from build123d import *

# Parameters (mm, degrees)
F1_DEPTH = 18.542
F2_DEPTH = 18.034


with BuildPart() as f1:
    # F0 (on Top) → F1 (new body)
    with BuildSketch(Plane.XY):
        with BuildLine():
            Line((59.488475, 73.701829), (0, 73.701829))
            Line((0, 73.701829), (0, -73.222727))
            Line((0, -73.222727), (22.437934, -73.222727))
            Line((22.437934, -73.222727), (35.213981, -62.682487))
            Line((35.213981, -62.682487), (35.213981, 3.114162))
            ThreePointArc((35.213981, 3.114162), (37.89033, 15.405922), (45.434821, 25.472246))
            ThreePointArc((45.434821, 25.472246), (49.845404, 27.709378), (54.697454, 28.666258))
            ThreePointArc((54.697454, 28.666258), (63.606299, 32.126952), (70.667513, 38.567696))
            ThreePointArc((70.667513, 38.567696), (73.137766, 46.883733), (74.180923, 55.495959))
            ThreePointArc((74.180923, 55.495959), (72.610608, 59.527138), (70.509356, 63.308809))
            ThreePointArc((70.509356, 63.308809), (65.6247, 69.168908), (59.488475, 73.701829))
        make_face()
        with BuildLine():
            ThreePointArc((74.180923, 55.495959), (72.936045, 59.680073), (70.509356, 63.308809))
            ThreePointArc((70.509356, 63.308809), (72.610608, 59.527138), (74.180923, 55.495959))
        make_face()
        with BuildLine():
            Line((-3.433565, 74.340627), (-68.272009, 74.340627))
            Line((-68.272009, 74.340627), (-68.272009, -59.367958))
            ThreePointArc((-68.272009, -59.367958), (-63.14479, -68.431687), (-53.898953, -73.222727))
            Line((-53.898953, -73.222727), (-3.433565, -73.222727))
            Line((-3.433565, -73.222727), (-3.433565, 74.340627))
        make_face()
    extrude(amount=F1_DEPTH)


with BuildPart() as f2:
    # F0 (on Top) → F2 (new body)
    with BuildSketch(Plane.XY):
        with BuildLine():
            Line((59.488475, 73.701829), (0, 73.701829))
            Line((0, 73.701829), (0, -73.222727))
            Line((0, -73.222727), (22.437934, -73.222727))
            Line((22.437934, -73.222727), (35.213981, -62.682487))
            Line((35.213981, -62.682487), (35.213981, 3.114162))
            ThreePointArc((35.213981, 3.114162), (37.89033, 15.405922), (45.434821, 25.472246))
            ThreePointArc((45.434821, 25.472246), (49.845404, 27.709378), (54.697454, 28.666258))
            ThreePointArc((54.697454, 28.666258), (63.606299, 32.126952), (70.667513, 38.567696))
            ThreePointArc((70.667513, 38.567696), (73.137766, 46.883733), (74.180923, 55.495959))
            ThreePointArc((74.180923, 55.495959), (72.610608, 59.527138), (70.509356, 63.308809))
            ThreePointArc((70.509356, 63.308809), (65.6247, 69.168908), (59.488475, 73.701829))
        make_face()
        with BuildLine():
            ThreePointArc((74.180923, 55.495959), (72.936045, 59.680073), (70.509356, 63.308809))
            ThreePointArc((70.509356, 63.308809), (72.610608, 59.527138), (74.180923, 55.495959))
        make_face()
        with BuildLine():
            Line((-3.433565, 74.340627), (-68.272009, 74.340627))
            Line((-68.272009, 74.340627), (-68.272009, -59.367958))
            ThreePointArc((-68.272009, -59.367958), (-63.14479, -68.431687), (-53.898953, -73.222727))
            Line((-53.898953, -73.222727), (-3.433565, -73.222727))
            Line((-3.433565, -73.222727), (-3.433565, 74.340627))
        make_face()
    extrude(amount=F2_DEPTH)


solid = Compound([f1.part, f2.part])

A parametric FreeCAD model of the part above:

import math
import FreeCAD as App
import Part
import Sketcher
from FreeCAD import Vector
Q = App.Units.Quantity

doc = App.newDocument("Part")
body = doc.addObject("PartDesign::Body", "Body")
body.AllowCompound = True

sketch1 = body.newObject("Sketcher::SketchObject", "Sketch")
sketch1.AttachmentSupport = (doc.getObject("XY_Plane"), [""])
sketch1.MapMode = "FlatFace"
sketch1.addGeometry([
    Part.LineSegment(Vector(59.488475, 73.701829, 0), Vector(0, 73.701829, 0)),
    Part.LineSegment(Vector(0, 73.701829, 0), Vector(0, -73.222727, 0)),
    Part.LineSegment(Vector(0, -73.222727, 0), Vector(22.437934, -73.222727, 0)),
    Part.LineSegment(Vector(22.437934, -73.222727, 0), Vector(35.213981, -62.682487, 0)),
    Part.LineSegment(Vector(35.213981, -62.682487, 0), Vector(35.213981, 3.114162, 0)),
    Part.ArcOfCircle(Part.Circle(Vector(64.778553, 3.114161, 0), Vector(0, 0, 1), 29.564572), math.radians(130.865652), math.radians(179.999999)),
    Part.ArcOfCircle(Part.Circle(Vector(55.732945, 10.635513, 0), Vector(0, 0, 1), 18.060454), math.radians(93.28684), math.radians(124.764379)),
    Part.ArcOfCircle(Part.Circle(Vector(49.878963, 54.267813, 0), Vector(0, 0, 1), 26.051055), math.radians(-79.341004), math.radians(-37.061163)),
    Part.ArcOfCircle(Part.Circle(Vector(22.580076, 57.376829, 0), Vector(0, 0, 1), 51.635115), math.radians(-21.362676), math.radians(-2.087528)),
    Part.ArcOfCircle(Part.Circle(Vector(59.728067, 53.473123, 0), Vector(0, 0, 1), 14.593729), math.radians(7.967419), math.radians(42.373954)),
    Part.ArcOfCircle(Part.Circle(Vector(43.735912, 45.95778, 0), Vector(0, 0, 1), 31.904161), math.radians(32.946007), math.radians(60.412884)),
    Part.LineSegment(Vector(-3.433565, 74.340627, 0), Vector(-68.272009, 74.340627, 0)),
    Part.LineSegment(Vector(-68.272009, 74.340627, 0), Vector(-68.272009, -59.367958, 0)),
    Part.ArcOfCircle(Part.Circle(Vector(-50.463494, -55.276002, 0), Vector(0, 0, 1), 18.272583), math.radians(-167.059467), math.radians(-100.83677)),
    Part.LineSegment(Vector(-53.898953, -73.222727, 0), Vector(-3.433565, -73.222727, 0)),
    Part.LineSegment(Vector(-3.433565, -73.222727, 0), Vector(-3.433565, 74.340627, 0)),
], False)
sketch1.addConstraint([
    Sketcher.Constraint("Coincident", 0, 2, 1, 1),
    Sketcher.Constraint("Coincident", 1, 2, 2, 1),
    Sketcher.Constraint("Coincident", 2, 2, 3, 1),
    Sketcher.Constraint("Coincident", 3, 2, 4, 1),
    Sketcher.Constraint("Coincident", 4, 2, 5, 2),
    Sketcher.Constraint("Coincident", 5, 1, 6, 2),
    Sketcher.Constraint("Coincident", 6, 1, 7, 1),
    Sketcher.Constraint("Coincident", 7, 2, 8, 1),
    Sketcher.Constraint("Coincident", 8, 2, 9, 1),
    Sketcher.Constraint("Coincident", 9, 2, 10, 1),
    Sketcher.Constraint("Coincident", 10, 2, 0, 1),
    Sketcher.Constraint("Coincident", 11, 2, 12, 1),
    Sketcher.Constraint("Coincident", 12, 2, 13, 1),
    Sketcher.Constraint("Coincident", 13, 2, 14, 1),
    Sketcher.Constraint("Coincident", 14, 2, 15, 1),
    Sketcher.Constraint("Coincident", 15, 2, 11, 1),
    Sketcher.Constraint("Horizontal", 0),
    Sketcher.Constraint("Vertical", 1),
    Sketcher.Constraint("Horizontal", 2),
    Sketcher.Constraint("Vertical", 4),
    Sketcher.Constraint("Horizontal", 11),
    Sketcher.Constraint("Vertical", 12),
    Sketcher.Constraint("Horizontal", 14),
    Sketcher.Constraint("Vertical", 15),
    Sketcher.Constraint("PointOnObject", 0, 2, -2),
    Sketcher.Constraint("Radius", 9, 14.593729),
    Sketcher.Constraint("Radius", 10, 31.904161),
    Sketcher.Constraint("Radius", 5, 29.564572),
    Sketcher.Constraint("Radius", 6, 18.060454),
    Sketcher.Constraint("Radius", 7, 26.051055),
    Sketcher.Constraint("Radius", 8, 51.635115),
    Sketcher.Constraint("Radius", 13, 18.272583),
    Sketcher.Constraint("DistanceY", 4, 1, 4, 2, 65.796649),
    Sketcher.Constraint("DistanceY", 6, 3, 7, 3, 43.6323),
    Sketcher.Constraint("DistanceY", 8, 3, 0, 2, 16.325),
    Sketcher.Constraint("DistanceY", 3, 2, 6, 3, 73.318),
    Sketcher.Constraint("DistanceX", 10, 3, 7, 2, 26.931601),
    Sketcher.Constraint("DistanceY", 6, 1, 8, 2, 26.829701),
    Sketcher.Constraint("DistanceX", 14, 2, 2, 2, 25.871499),
    Sketcher.Constraint("DistanceY", 10, 2, 15, 2, 0.638798),
    Sketcher.Constraint("Distance", 3, 16.56273),
    Sketcher.Constraint("DistanceX", 0, 2, 0, 1, 59.488475),
    Sketcher.Constraint("DistanceX", 2, 1, 2, 2, 22.437934),
    Sketcher.Constraint("DistanceX", 11, 2, 11, 1, 64.838444),
    Sketcher.Constraint("DistanceX", 14, 1, 14, 2, 50.465388),
    Sketcher.Constraint("DistanceY", 1, 2, 1, 1, 146.924556),
    Sketcher.Constraint("DistanceY", 12, 2, 12, 1, 133.708585),
    Sketcher.Constraint("DistanceY", 15, 1, 15, 2, 147.563354),
    Sketcher.Constraint("DistanceY", -1, 1, 5, 3, 3.114161),
    Sketcher.Constraint("DistanceY", -1, 1, 8, 3, 57.376829),
    Sketcher.Constraint("DistanceY", -1, 1, 10, 3, 45.95778),
    Sketcher.Constraint("DistanceX", -1, 1, 3, 2, 35.213981),
    Sketcher.Constraint("DistanceX", -1, 1, 5, 1, 45.434821),
    Sketcher.Constraint("DistanceY", -1, 1, 6, 1, 28.666258),
    Sketcher.Constraint("DistanceY", -1, 1, 9, 2, 63.308809),
])
pad1 = body.newObject("PartDesign::Pad", "Pad")
pad1.Profile = sketch1
pad1.Length = Q("0.73 in")
body2 = doc.addObject("PartDesign::Body", "Body001")
body2.AllowCompound = True

sketch2 = body2.newObject("Sketcher::SketchObject", "Sketch001")
sketch2.AttachmentSupport = (doc.getObject("XY_Plane001"), [""])
sketch2.MapMode = "FlatFace"
sketch2.addGeometry([
    Part.LineSegment(Vector(59.488475, 73.701829, 0), Vector(0, 73.701829, 0)),
    Part.LineSegment(Vector(0, 73.701829, 0), Vector(0, -73.222727, 0)),
    Part.LineSegment(Vector(0, -73.222727, 0), Vector(22.437934, -73.222727, 0)),
    Part.LineSegment(Vector(22.437934, -73.222727, 0), Vector(35.213981, -62.682487, 0)),
    Part.LineSegment(Vector(35.213981, -62.682487, 0), Vector(35.213981, 3.114162, 0)),
    Part.ArcOfCircle(Part.Circle(Vector(64.778553, 3.114161, 0), Vector(0, 0, 1), 29.564572), math.radians(130.865652), math.radians(179.999999)),
    Part.ArcOfCircle(Part.Circle(Vector(55.732945, 10.635513, 0), Vector(0, 0, 1), 18.060454), math.radians(93.28684), math.radians(124.764379)),
    Part.ArcOfCircle(Part.Circle(Vector(49.878963, 54.267813, 0), Vector(0, 0, 1), 26.051055), math.radians(-79.341004), math.radians(-37.061163)),
    Part.ArcOfCircle(Part.Circle(Vector(22.580076, 57.376829, 0), Vector(0, 0, 1), 51.635115), math.radians(-21.362676), math.radians(-2.087528)),
    Part.ArcOfCircle(Part.Circle(Vector(59.728067, 53.473123, 0), Vector(0, 0, 1), 14.593729), math.radians(7.967419), math.radians(42.373954)),
    Part.ArcOfCircle(Part.Circle(Vector(43.735912, 45.95778, 0), Vector(0, 0, 1), 31.904161), math.radians(32.946007), math.radians(60.412884)),
    Part.LineSegment(Vector(-3.433565, 74.340627, 0), Vector(-68.272009, 74.340627, 0)),
    Part.LineSegment(Vector(-68.272009, 74.340627, 0), Vector(-68.272009, -59.367958, 0)),
    Part.ArcOfCircle(Part.Circle(Vector(-50.463494, -55.276002, 0), Vector(0, 0, 1), 18.272583), math.radians(-167.059467), math.radians(-100.83677)),
    Part.LineSegment(Vector(-53.898953, -73.222727, 0), Vector(-3.433565, -73.222727, 0)),
    Part.LineSegment(Vector(-3.433565, -73.222727, 0), Vector(-3.433565, 74.340627, 0)),
], False)
sketch2.addConstraint([
    Sketcher.Constraint("Coincident", 0, 2, 1, 1),
    Sketcher.Constraint("Coincident", 1, 2, 2, 1),
    Sketcher.Constraint("Coincident", 2, 2, 3, 1),
    Sketcher.Constraint("Coincident", 3, 2, 4, 1),
    Sketcher.Constraint("Coincident", 4, 2, 5, 2),
    Sketcher.Constraint("Coincident", 5, 1, 6, 2),
    Sketcher.Constraint("Coincident", 6, 1, 7, 1),
    Sketcher.Constraint("Coincident", 7, 2, 8, 1),
    Sketcher.Constraint("Coincident", 8, 2, 9, 1),
    Sketcher.Constraint("Coincident", 9, 2, 10, 1),
    Sketcher.Constraint("Coincident", 10, 2, 0, 1),
    Sketcher.Constraint("Coincident", 11, 2, 12, 1),
    Sketcher.Constraint("Coincident", 12, 2, 13, 1),
    Sketcher.Constraint("Coincident", 13, 2, 14, 1),
    Sketcher.Constraint("Coincident", 14, 2, 15, 1),
    Sketcher.Constraint("Coincident", 15, 2, 11, 1),
    Sketcher.Constraint("Horizontal", 0),
    Sketcher.Constraint("Vertical", 1),
    Sketcher.Constraint("Horizontal", 2),
    Sketcher.Constraint("Vertical", 4),
    Sketcher.Constraint("Horizontal", 11),
    Sketcher.Constraint("Vertical", 12),
    Sketcher.Constraint("Horizontal", 14),
    Sketcher.Constraint("Vertical", 15),
    Sketcher.Constraint("PointOnObject", 0, 2, -2),
    Sketcher.Constraint("Radius", 9, 14.593729),
    Sketcher.Constraint("Radius", 10, 31.904161),
    Sketcher.Constraint("Radius", 5, 29.564572),
    Sketcher.Constraint("Radius", 6, 18.060454),
    Sketcher.Constraint("Radius", 7, 26.051055),
    Sketcher.Constraint("Radius", 8, 51.635115),
    Sketcher.Constraint("Radius", 13, 18.272583),
    Sketcher.Constraint("DistanceY", 4, 1, 4, 2, 65.796649),
    Sketcher.Constraint("DistanceY", 6, 3, 7, 3, 43.6323),
    Sketcher.Constraint("DistanceY", 8, 3, 0, 2, 16.325),
    Sketcher.Constraint("DistanceY", 3, 2, 6, 3, 73.318),
    Sketcher.Constraint("DistanceX", 10, 3, 7, 2, 26.931601),
    Sketcher.Constraint("DistanceY", 6, 1, 8, 2, 26.829701),
    Sketcher.Constraint("DistanceX", 14, 2, 2, 2, 25.871499),
    Sketcher.Constraint("DistanceY", 10, 2, 15, 2, 0.638798),
    Sketcher.Constraint("Distance", 3, 16.56273),
    Sketcher.Constraint("DistanceX", 0, 2, 0, 1, 59.488475),
    Sketcher.Constraint("DistanceX", 2, 1, 2, 2, 22.437934),
    Sketcher.Constraint("DistanceX", 11, 2, 11, 1, 64.838444),
    Sketcher.Constraint("DistanceX", 14, 1, 14, 2, 50.465388),
    Sketcher.Constraint("DistanceY", 1, 2, 1, 1, 146.924556),
    Sketcher.Constraint("DistanceY", 12, 2, 12, 1, 133.708585),
    Sketcher.Constraint("DistanceY", 15, 1, 15, 2, 147.563354),
    Sketcher.Constraint("DistanceY", -1, 1, 5, 3, 3.114161),
    Sketcher.Constraint("DistanceY", -1, 1, 8, 3, 57.376829),
    Sketcher.Constraint("DistanceY", -1, 1, 10, 3, 45.95778),
    Sketcher.Constraint("DistanceX", -1, 1, 3, 2, 35.213981),
    Sketcher.Constraint("DistanceX", -1, 1, 5, 1, 45.434821),
    Sketcher.Constraint("DistanceY", -1, 1, 6, 1, 28.666258),
    Sketcher.Constraint("DistanceY", -1, 1, 9, 2, 63.308809),
])
pad2 = body2.newObject("PartDesign::Pad", "Pad001")
pad2.Profile = sketch2
pad2.Length = Q("0.71 in")

doc.recompute()
